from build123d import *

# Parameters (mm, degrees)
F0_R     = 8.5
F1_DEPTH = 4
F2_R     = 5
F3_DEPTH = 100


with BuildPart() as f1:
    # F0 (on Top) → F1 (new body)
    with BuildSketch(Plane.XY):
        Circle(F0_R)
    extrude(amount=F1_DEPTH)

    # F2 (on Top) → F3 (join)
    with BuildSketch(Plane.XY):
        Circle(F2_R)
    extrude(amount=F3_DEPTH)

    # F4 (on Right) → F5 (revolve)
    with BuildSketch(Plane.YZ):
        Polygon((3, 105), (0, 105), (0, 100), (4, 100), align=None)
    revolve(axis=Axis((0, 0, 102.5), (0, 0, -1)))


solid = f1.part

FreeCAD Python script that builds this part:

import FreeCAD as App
import Part
import Sketcher

V = App.Vector


def add_polygon(sketch, points):
    """Adds a closed chain of lines whose ends are joined by coincident constraints."""
    first, n = sketch.GeometryCount, len(points)
    for a, b in zip(points, points[1:] + points[:1]):
        sketch.addGeometry(Part.LineSegment(App.Vector(*a, 0), App.Vector(*b, 0)), False)
    for i in range(n):
        sketch.addConstraint(Sketcher.Constraint("Coincident", first + i, 2, first + (i + 1) % n, 1))

doc = App.newDocument("Part")
body = doc.addObject("PartDesign::Body", "Body")

# Sketch on XY plane
sketch1 = body.newObject("Sketcher::SketchObject", "Sketch")
sketch1.AttachmentSupport = (doc.getObject("XY_Plane"), [""])
sketch1.MapMode = "FlatFace"
sketch1.addGeometry(Part.Circle(V(0, 0, 0), V(0, 0, 1), 8), False)
sketch1.addConstraint([
    Sketcher.Constraint("Coincident", 0, 3, -1, 1),
    Sketcher.Constraint("Diameter", 0, 17.0),
])
pad1 = body.newObject("PartDesign::Pad", "Pad")
pad1.Profile = sketch1
pad1.Length = 4

# Sketch on XY plane
sketch2 = body.newObject("Sketcher::SketchObject", "Sketch001")
sketch2.AttachmentSupport = (doc.getObject("XY_Plane"), [""])
sketch2.MapMode = "FlatFace"
sketch2.addGeometry(Part.Circle(V(0, 0, 0), V(0, 0, 1), 5), False)
sketch2.addConstraint([
    Sketcher.Constraint("Coincident", 0, 3, -1, 1),
    Sketcher.Constraint("Diameter", 0, 10.0),
])
pad2 = body.newObject("PartDesign::Pad", "Pad001")
pad2.Profile = sketch2
pad2.Length = 100

# Sketch on YZ plane
sketch3 = body.newObject("Sketcher::SketchObject", "Sketch002")
sketch3.AttachmentSupport = (doc.getObject("YZ_Plane"), [""])
sketch3.MapMode = "FlatFace"
add_polygon(sketch3, [(3, 105), (0, 105), (0, 100), (4, 100)])  # lines 0-3
sketch3.addConstraint([
    Sketcher.Constraint("Horizontal", 0),
    Sketcher.Constraint("Vertical", 1),
    Sketcher.Constraint("Horizontal", 2),
    Sketcher.Constraint("PointOnObject", 0, 2, -2),
    Sketcher.Constraint("DistanceX", 0, 2, 0, 1, 3.0),
    Sketcher.Constraint("DistanceX", 2, 1, 2, 2, 4.0),
    Sketcher.Constraint("DistanceY", 1, 2, 1, 1, 5.0),
    Sketcher.Constraint("DistanceY", -1, 1, 0, 2, 105.0),
])
revolution = body.newObject("PartDesign::Revolution", "Revolution")
revolution.Profile = sketch3
revolution.ReferenceAxis = (sketch3, ["V_Axis"])
revolution.Angle = 360

doc.recompute()
